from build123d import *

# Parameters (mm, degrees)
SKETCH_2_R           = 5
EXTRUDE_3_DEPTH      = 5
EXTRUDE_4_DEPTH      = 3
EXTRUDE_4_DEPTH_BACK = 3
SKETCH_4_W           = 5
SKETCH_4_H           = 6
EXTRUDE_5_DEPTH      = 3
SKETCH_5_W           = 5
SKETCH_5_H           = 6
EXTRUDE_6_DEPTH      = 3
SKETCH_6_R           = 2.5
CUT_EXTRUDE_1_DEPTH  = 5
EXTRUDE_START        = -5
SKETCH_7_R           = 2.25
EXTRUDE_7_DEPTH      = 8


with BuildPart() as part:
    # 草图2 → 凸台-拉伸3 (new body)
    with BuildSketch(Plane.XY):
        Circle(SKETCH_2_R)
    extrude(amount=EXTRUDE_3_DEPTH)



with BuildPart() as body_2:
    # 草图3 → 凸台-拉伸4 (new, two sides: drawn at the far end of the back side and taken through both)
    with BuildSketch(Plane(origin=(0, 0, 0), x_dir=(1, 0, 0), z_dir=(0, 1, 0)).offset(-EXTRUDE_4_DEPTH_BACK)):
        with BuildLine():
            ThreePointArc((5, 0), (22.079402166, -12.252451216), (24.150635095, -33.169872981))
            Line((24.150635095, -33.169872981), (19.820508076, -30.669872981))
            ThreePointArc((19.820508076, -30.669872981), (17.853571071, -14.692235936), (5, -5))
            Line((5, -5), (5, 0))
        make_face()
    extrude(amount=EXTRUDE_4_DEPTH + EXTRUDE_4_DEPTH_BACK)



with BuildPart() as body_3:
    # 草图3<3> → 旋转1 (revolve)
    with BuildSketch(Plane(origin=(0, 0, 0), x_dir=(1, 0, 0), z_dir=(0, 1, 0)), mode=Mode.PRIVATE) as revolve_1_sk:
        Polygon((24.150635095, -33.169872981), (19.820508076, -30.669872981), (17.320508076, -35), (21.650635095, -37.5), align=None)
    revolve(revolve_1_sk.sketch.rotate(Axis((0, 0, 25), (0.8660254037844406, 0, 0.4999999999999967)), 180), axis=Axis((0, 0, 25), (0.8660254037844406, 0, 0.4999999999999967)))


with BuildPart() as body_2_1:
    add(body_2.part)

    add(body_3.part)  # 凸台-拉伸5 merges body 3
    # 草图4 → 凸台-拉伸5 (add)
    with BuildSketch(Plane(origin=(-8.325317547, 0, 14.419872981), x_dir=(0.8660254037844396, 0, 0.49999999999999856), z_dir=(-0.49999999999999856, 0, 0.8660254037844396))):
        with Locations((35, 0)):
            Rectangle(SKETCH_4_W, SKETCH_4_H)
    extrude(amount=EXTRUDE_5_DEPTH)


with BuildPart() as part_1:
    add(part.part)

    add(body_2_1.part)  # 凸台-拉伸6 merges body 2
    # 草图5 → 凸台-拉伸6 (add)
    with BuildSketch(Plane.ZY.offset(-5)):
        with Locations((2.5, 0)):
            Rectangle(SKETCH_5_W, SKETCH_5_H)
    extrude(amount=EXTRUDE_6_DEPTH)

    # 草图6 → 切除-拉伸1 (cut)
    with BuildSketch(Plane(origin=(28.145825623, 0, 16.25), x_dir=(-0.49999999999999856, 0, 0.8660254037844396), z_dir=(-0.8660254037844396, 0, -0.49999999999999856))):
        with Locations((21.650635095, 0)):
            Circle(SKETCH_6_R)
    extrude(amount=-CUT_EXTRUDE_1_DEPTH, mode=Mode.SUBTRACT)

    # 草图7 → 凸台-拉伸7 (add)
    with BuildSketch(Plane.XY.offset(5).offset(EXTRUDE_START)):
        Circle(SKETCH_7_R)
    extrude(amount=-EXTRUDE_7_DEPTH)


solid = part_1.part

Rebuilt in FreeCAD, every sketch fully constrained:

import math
import FreeCAD as App
import Part
import Sketcher
from FreeCAD import Vector
Q = App.Units.Quantity

doc = App.newDocument("Part")
body = doc.addObject("PartDesign::Body", "Body")

# Sketch on XY plane
sketch1 = doc.addObject("Sketcher::SketchObject", "Sketch")
body.addObject(sketch1)
sketch1.AttachmentSupport = (doc.XY_Plane, [""])
sketch1.MapMode = "FlatFace"
sketch1.addGeometry(Part.Circle(Vector(0, 0, 0), Vector(0, 0, 1), 5), False)
sketch1.addConstraint(Sketcher.Constraint("Coincident", 0, 3, -1, 1))
sketch1.addConstraint(Sketcher.Constraint("Diameter", 0, 10.0))
pad1 = doc.addObject("PartDesign::Pad", "Pad")
body.addObject(pad1)
pad1.Profile = sketch1
pad1.Length = 5
body2 = doc.addObject("PartDesign::Body", "Body001")

# Sketch on XZ plane
sketch2 = doc.addObject("Sketcher::SketchObject", "Sketch001")
body2.addObject(sketch2)
sketch2.AttachmentSupport = (doc.getObject("XZ_Plane001"), [""])
sketch2.MapMode = "FlatFace"
sketch2.addGeometry(Part.ArcOfCircle(Part.Circle(Vector(0, 25, 0), Vector(0, 0, 1), 25), math.radians(-79), math.radians(19)), False)
sketch2.addGeometry(Part.LineSegment(Vector(5, 0, 0), Vector(5, 5, 0)), False)
sketch2.addGeometry(Part.ArcOfCircle(Part.Circle(Vector(0, 25, 0), Vector(0, 0, 1), 21), math.radians(-76), math.radians(16)), False)
sketch2.addGeometry(Part.LineSegment(Vector(20, 31, 0), Vector(24, 33, 0)), False)
sketch2.addConstraint(Sketcher.Constraint("Coincident", 0, 1, 1, 1))
sketch2.addConstraint(Sketcher.Constraint("Coincident", 1, 2, 2, 1))
sketch2.addConstraint(Sketcher.Constraint("Coincident", 2, 2, 3, 1))
sketch2.addConstraint(Sketcher.Constraint("Coincident", 3, 2, 0, 2))
sketch2.addConstraint(Sketcher.Constraint("Vertical", 1))
sketch2.addConstraint(Sketcher.Constraint("Coincident", 2, 3, 0, 3))
sketch2.addConstraint(Sketcher.Constraint("PointOnObject", 0, 3, -2))
sketch2.addConstraint(Sketcher.Constraint("PointOnObject", 0, 1, -1))
sketch2.addConstraint(Sketcher.Constraint("DistanceY", 1, 1, 1, 2, 5.0))
sketch2.addConstraint(Sketcher.Constraint("Angle", 3, Q("30 deg")))
sketch2.addConstraint(Sketcher.Constraint("Distance", 3, 5.0))
sketch2.addConstraint(Sketcher.Constraint("DistanceY", -1, 1, 0, 3, 25.0))
sketch2.addConstraint(Sketcher.Constraint("DistanceX", -1, 1, 0, 1, 5.0))
pad2 = doc.addObject("PartDesign::Pad", "Pad001")
body2.addObject(pad2)
pad2.Profile = sketch2
pad2.Type = "TwoLengths"
pad2.Length = 3
pad2.Length2 = 3
pad2.Reversed = True
body3 = doc.addObject("PartDesign::Body", "Body002")

# Sketch on XZ plane
sketch3 = doc.addObject("Sketcher::SketchObject", "Sketch002")
body3.addObject(sketch3)
sketch3.AttachmentSupport = (doc.getObject("XZ_Plane002"), [""])
sketch3.MapMode = "FlatFace"
sketch3.addGeometry(Part.LineSegment(Vector(24, 33, 0), Vector(20, 31, 0)), False)
sketch3.addGeometry(Part.LineSegment(Vector(20, 31, 0), Vector(17, 35, 0)), False)
sketch3.addGeometry(Part.LineSegment(Vector(17, 35, 0), Vector(22, 38, 0)), False)
sketch3.addGeometry(Part.LineSegment(Vector(22, 38, 0), Vector(24, 33, 0)), False)
sketch3.addGeometry(Part.LineSegment(Vector(17, 35, 0), Vector(22, 38, 0)), True)  # axis
sketch3.addConstraint(Sketcher.Constraint("Coincident", 0, 2, 1, 1))
sketch3.addConstraint(Sketcher.Constraint("Coincident", 1, 2, 2, 1))
sketch3.addConstraint(Sketcher.Constraint("Coincident", 2, 2, 3, 1))
sketch3.addConstraint(Sketcher.Constraint("Coincident", 3, 2, 0, 1))
sketch3.addConstraint(Sketcher.Constraint("Coincident", 4, 1, 1, 2))
sketch3.addConstraint(Sketcher.Constraint("Coincident", 4, 2, 2, 2))
sketch3.addConstraint(Sketcher.Constraint("Perpendicular", 0, 1))
sketch3.addConstraint(Sketcher.Constraint("Perpendicular", 1, 2))
sketch3.addConstraint(Sketcher.Constraint("Perpendicular", 2, 3))
sketch3.addConstraint(Sketcher.Constraint("Equal", 0, 1))
sketch3.addConstraint(Sketcher.Constraint("Angle", 0, Q("-150 deg")))
sketch3.addConstraint(Sketcher.Constraint("Distance", 0, 5.0))
sketch3.addConstraint(Sketcher.Constraint("DistanceY", -1, 1, 1, 2, 35.0))
sketch3.addConstraint(Sketcher.Constraint("DistanceX", -1, 1, 0, 2, 19.820508))
revolution = doc.addObject("PartDesign::Revolution", "Revolution")
body3.addObject(revolution)
revolution.Profile = sketch3
revolution.ReferenceAxis = (sketch3, ["Axis0"])
revolution.Angle = 360
body2.AllowCompound = True
doc.recompute()

boolean = doc.addObject("PartDesign::Boolean", "Boolean")
body2.addObject(boolean)
boolean.Type = "Fuse"
boolean.addObjects([body3])

# Sketch on an angled plane
sketch4 = doc.addObject("Sketcher::SketchObject", "Sketch003")
body2.addObject(sketch4)
sketch4.Placement = App.Placement(Vector(-8.325318, 0, 14.419873), App.Rotation(Vector(0.866025404, 0, 0.5), Vector(0, 1, 0), Vector(-0.5, 0, 0.866025404), "ZXY"))
sketch4.addGeometry(Part.LineSegment(Vector(33, 3, 0), Vector(33, -3, 0)), False)
sketch4.addGeometry(Part.LineSegment(Vector(33, -3, 0), Vector(38, -3, 0)), False)
sketch4.addGeometry(Part.LineSegment(Vector(38, -3, 0), Vector(38, 3, 0)), False)
sketch4.addGeometry(Part.LineSegment(Vector(38, 3, 0), Vector(33, 3, 0)), False)
sketch4.addConstraint(Sketcher.Constraint("Coincident", 0, 2, 1, 1))
sketch4.addConstraint(Sketcher.Constraint("Coincident", 1, 2, 2, 1))
sketch4.addConstraint(Sketcher.Constraint("Coincident", 2, 2, 3, 1))
sketch4.addConstraint(Sketcher.Constraint("Coincident", 3, 2, 0, 1))
sketch4.addConstraint(Sketcher.Constraint("Vertical", 0))
sketch4.addConstraint(Sketcher.Constraint("Horizontal", 1))
sketch4.addConstraint(Sketcher.Constraint("Vertical", 2))
sketch4.addConstraint(Sketcher.Constraint("Horizontal", 3))
sketch4.addConstraint(Sketcher.Constraint("DistanceX", 1, 1, 1, 2, 5.0))
sketch4.addConstraint(Sketcher.Constraint("DistanceY", 0, 2, 0, 1, 6.0))
sketch4.addConstraint(Sketcher.Constraint("DistanceY", 0, 2, -1, 1, 3.0))
sketch4.addConstraint(Sketcher.Constraint("DistanceX", -1, 1, 0, 2, 32.5))
pad3 = doc.addObject("PartDesign::Pad", "Pad002")
body2.addObject(pad3)
pad3.Profile = sketch4
pad3.Length = 3
body.AllowCompound = True
doc.recompute()

boolean2 = doc.addObject("PartDesign::Boolean", "Boolean001")
body.addObject(boolean2)
boolean2.Type = "Fuse"
boolean2.addObjects([body2])

# Sketch on YZ plane
sketch5 = doc.addObject("Sketcher::SketchObject", "Sketch004")
body.addObject(sketch5)
sketch5.AttachmentSupport = (doc.YZ_Plane, [""])
sketch5.MapMode = "FlatFace"
sketch5.AttachmentOffset = App.Placement(Vector(0, 0, 5), App.Rotation())
sketch5.addGeometry(Part.LineSegment(Vector(3, 0, 0), Vector(-3, 0, 0)), False)
sketch5.addGeometry(Part.LineSegment(Vector(-3, 0, 0), Vector(-3, 5, 0)), False)
sketch5.addGeometry(Part.LineSegment(Vector(-3, 5, 0), Vector(3, 5, 0)), False)
sketch5.addGeometry(Part.LineSegment(Vector(3, 5, 0), Vector(3, 0, 0)), False)
sketch5.addConstraint(Sketcher.Constraint("Coincident", 0, 2, 1, 1))
sketch5.addConstraint(Sketcher.Constraint("Coincident", 1, 2, 2, 1))
sketch5.addConstraint(Sketcher.Constraint("Coincident", 2, 2, 3, 1))
sketch5.addConstraint(Sketcher.Constraint("Coincident", 3, 2, 0, 1))
sketch5.addConstraint(Sketcher.Constraint("Horizontal", 0))
sketch5.addConstraint(Sketcher.Constraint("Vertical", 1))
sketch5.addConstraint(Sketcher.Constraint("Horizontal", 2))
sketch5.addConstraint(Sketcher.Constraint("Vertical", 3))
sketch5.addConstraint(Sketcher.Constraint("Symmetric", 0, 2, 3, 2, -1, 1))
sketch5.addConstraint(Sketcher.Constraint("DistanceX", 0, 2, 0, 1, 6.0))
sketch5.addConstraint(Sketcher.Constraint("DistanceY", 1, 1, 1, 2, 5.0))
pad4 = doc.addObject("PartDesign::Pad", "Pad003")
body.addObject(pad4)
pad4.Profile = sketch5
pad4.Length = 3
pad4.Reversed = True

# Sketch on an angled plane
sketch6 = doc.addObject("Sketcher::SketchObject", "Sketch005")
body.addObject(sketch6)
sketch6.Placement = App.Placement(Vector(28.145826, 0, 16.25), App.Rotation(Vector(-0.5, 0, 0.866025404), Vector(0, 1, 0), Vector(-0.866025404, 0, -0.5), "ZXY"))
sketch6.addGeometry(Part.Circle(Vector(21.7, 0, 0), Vector(0, 0, 1), 2.5), False)
sketch6.addConstraint(Sketcher.Constraint("PointOnObject", 0, 3, -1))
sketch6.addConstraint(Sketcher.Constraint("Diameter", 0, 5.0))
sketch6.addConstraint(Sketcher.Constraint("DistanceX", -1, 1, 0, 3, 21.650635))
pocket1 = doc.addObject("PartDesign::Pocket", "Pocket")
body.addObject(pocket1)
pocket1.Profile = sketch6
pocket1.Length = 5

# Sketch on XY plane
sketch7 = doc.addObject("Sketcher::SketchObject", "Sketch006")
body.addObject(sketch7)
sketch7.AttachmentSupport = (doc.XY_Plane, [""])
sketch7.MapMode = "FlatFace"
sketch7.addGeometry(Part.Circle(Vector(0, 0, 0), Vector(0, 0, 1), 2.2), False)
sketch7.addConstraint(Sketcher.Constraint("Coincident", 0, 3, -1, 1))
sketch7.addConstraint(Sketcher.Constraint("Diameter", 0, 4.5))
pad5 = doc.addObject("PartDesign::Pad", "Pad004")
body.addObject(pad5)
pad5.Profile = sketch7
pad5.Length = 8
pad5.Reversed = True

doc.recompute()
